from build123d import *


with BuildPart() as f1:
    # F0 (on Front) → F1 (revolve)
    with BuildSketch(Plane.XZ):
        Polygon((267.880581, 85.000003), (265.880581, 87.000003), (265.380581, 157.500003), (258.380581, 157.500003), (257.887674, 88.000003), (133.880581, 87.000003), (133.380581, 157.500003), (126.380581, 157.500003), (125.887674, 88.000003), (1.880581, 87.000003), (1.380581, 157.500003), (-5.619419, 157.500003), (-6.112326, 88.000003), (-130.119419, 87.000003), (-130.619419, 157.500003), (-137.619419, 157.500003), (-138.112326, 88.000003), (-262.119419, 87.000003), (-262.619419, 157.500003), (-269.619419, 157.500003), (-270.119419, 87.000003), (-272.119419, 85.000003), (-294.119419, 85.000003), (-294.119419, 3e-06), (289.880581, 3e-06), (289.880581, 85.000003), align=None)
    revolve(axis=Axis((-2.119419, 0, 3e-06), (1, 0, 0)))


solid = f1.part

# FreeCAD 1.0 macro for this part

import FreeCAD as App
import Part
import Sketcher
from FreeCAD import Vector

doc = App.newDocument("Part")
body = doc.addObject("PartDesign::Body", "Body")

sketch1 = doc.addObject("Sketcher::SketchObject", "Sketch")
body.addObject(sketch1)
sketch1.AttachmentSupport = (doc.XZ_Plane, [""])
sketch1.MapMode = "FlatFace"
sketch1.addGeometry([
    Part.LineSegment(Vector(267.880581, 85.000003, 0), Vector(265.880581, 87.000003, 0)),
    Part.LineSegment(Vector(265.880581, 87.000003, 0), Vector(265.380581, 157.500003, 0)),
    Part.LineSegment(Vector(265.380581, 157.500003, 0), Vector(258.380581, 157.500003, 0)),
    Part.LineSegment(Vector(258.380581, 157.500003, 0), Vector(257.887674, 88.000003, 0)),
    Part.LineSegment(Vector(257.887674, 88.000003, 0), Vector(133.880581, 87.000003, 0)),
    Part.LineSegment(Vector(133.880581, 87.000003, 0), Vector(133.380581, 157.500003, 0)),
    Part.LineSegment(Vector(133.380581, 157.500003, 0), Vector(126.380581, 157.500003, 0)),
    Part.LineSegment(Vector(126.380581, 157.500003, 0), Vector(125.887674, 88.000003, 0)),
    Part.LineSegment(Vector(125.887674, 88.000003, 0), Vector(1.880581, 87.000003, 0)),
    Part.LineSegment(Vector(1.880581, 87.000003, 0), Vector(1.380581, 157.500003, 0)),
    Part.LineSegment(Vector(1.380581, 157.500003, 0), Vector(-5.619419, 157.500003, 0)),
    Part.LineSegment(Vector(-5.619419, 157.500003, 0), Vector(-6.112326, 88.000003, 0)),
    Part.LineSegment(Vector(-6.112326, 88.000003, 0), Vector(-130.119419, 87.000003, 0)),
    Part.LineSegment(Vector(-130.119419, 87.000003, 0), Vector(-130.619419, 157.500003, 0)),
    Part.LineSegment(Vector(-130.619419, 157.500003, 0), Vector(-137.619419, 157.500003, 0)),
    Part.LineSegment(Vector(-137.619419, 157.500003, 0), Vector(-138.112326, 88.000003, 0)),
    Part.LineSegment(Vector(-138.112326, 88.000003, 0), Vector(-262.119419, 87.000003, 0)),
    Part.LineSegment(Vector(-262.119419, 87.000003, 0), Vector(-262.619419, 157.500003, 0)),
    Part.LineSegment(Vector(-262.619419, 157.500003, 0), Vector(-269.619419, 157.500003, 0)),
    Part.LineSegment(Vector(-269.619419, 157.500003, 0), Vector(-270.119419, 87.000003, 0)),
    Part.LineSegment(Vector(-270.119419, 87.000003, 0), Vector(-272.119419, 85.000003, 0)),
    Part.LineSegment(Vector(-272.119419, 85.000003, 0), Vector(-294.119419, 85.000003, 0)),
    Part.LineSegment(Vector(-294.119419, 85.000003, 0), Vector(-294.119419, 0.000003, 0)),
    Part.LineSegment(Vector(-294.119419, 0.000003, 0), Vector(289.880581, 0.000003, 0)),
    Part.LineSegment(Vector(289.880581, 0.000003, 0), Vector(289.880581, 85.000003, 0)),
    Part.LineSegment(Vector(289.880581, 85.000003, 0), Vector(267.880581, 85.000003, 0)),
], False)
sketch1.addGeometry(Part.LineSegment(Vector(-294.119419, 0.000003, 0), Vector(289.880581, 0.000003, 0)), True)
sketch1.addConstraint([
    Sketcher.Constraint("Coincident", 0, 2, 1, 1),
    Sketcher.Constraint("Coincident", 1, 2, 2, 1),
    Sketcher.Constraint("Coincident", 2, 2, 3, 1),
    Sketcher.Constraint("Coincident", 3, 2, 4, 1),
    Sketcher.Constraint("Coincident", 4, 2, 5, 1),
    Sketcher.Constraint("Coincident", 5, 2, 6, 1),
    Sketcher.Constraint("Coincident", 6, 2, 7, 1),
    Sketcher.Constraint("Coincident", 7, 2, 8, 1),
    Sketcher.Constraint("Coincident", 8, 2, 9, 1),
    Sketcher.Constraint("Coincident", 9, 2, 10, 1),
    Sketcher.Constraint("Coincident", 10, 2, 11, 1),
    Sketcher.Constraint("Coincident", 11, 2, 12, 1),
    Sketcher.Constraint("Coincident", 12, 2, 13, 1),
    Sketcher.Constraint("Coincident", 13, 2, 14, 1),
    Sketcher.Constraint("Coincident", 14, 2, 15, 1),
    Sketcher.Constraint("Coincident", 15, 2, 16, 1),
    Sketcher.Constraint("Coincident", 16, 2, 17, 1),
    Sketcher.Constraint("Coincident", 17, 2, 18, 1),
    Sketcher.Constraint("Coincident", 18, 2, 19, 1),
    Sketcher.Constraint("Coincident", 19, 2, 20, 1),
    Sketcher.Constraint("Coincident", 20, 2, 21, 1),
    Sketcher.Constraint("Coincident", 21, 2, 22, 1),
    Sketcher.Constraint("Coincident", 22, 2, 23, 1),
    Sketcher.Constraint("Coincident", 23, 2, 24, 1),
    Sketcher.Constraint("Coincident", 24, 2, 25, 1),
    Sketcher.Constraint("Coincident", 25, 2, 0, 1),
    Sketcher.Constraint("Horizontal", 2),
    Sketcher.Constraint("Horizontal", 6),
    Sketcher.Constraint("Horizontal", 10),
    Sketcher.Constraint("Horizontal", 14),
    Sketcher.Constraint("Horizontal", 18),
    Sketcher.Constraint("Horizontal", 21),
    Sketcher.Constraint("Vertical", 22),
    Sketcher.Constraint("Horizontal", 23),
    Sketcher.Constraint("Vertical", 24),
    Sketcher.Constraint("Horizontal", 25),
    Sketcher.Constraint("Horizontal", 26),
    Sketcher.Constraint("Coincident", 26, 1, 22, 2),
    Sketcher.Constraint("Parallel", 1, 5),
    Sketcher.Constraint("Parallel", 3, 7),
    Sketcher.Constraint("Parallel", 4, 8),
    Sketcher.Constraint("Parallel", 5, 9),
    Sketcher.Constraint("Parallel", 7, 11),
    Sketcher.Constraint("Parallel", 8, 12),
    Sketcher.Constraint("Parallel", 9, 13),
    Sketcher.Constraint("Parallel", 11, 15),
    Sketcher.Constraint("Parallel", 12, 16),
    Sketcher.Constraint("Parallel", 13, 17),
    Sketcher.Constraint("Parallel", 15, 19),
    Sketcher.Constraint("Perpendicular", 0, 20),
    Sketcher.Constraint("Horizontal", 0, 2, 4, 2),
    Sketcher.Constraint("Horizontal", 2, 2, 5, 2),
    Sketcher.Constraint("Horizontal", 3, 2, 7, 2),
    Sketcher.Constraint("Horizontal", 4, 2, 8, 2),
    Sketcher.Constraint("Horizontal", 6, 2, 9, 2),
    Sketcher.Constraint("Horizontal", 7, 2, 11, 2),
    Sketcher.Constraint("Horizontal", 8, 2, 12, 2),
    Sketcher.Constraint("Horizontal", 10, 2, 13, 2),
    Sketcher.Constraint("Horizontal", 11, 2, 15, 2),
    Sketcher.Constraint("Horizontal", 12, 2, 16, 2),
    Sketcher.Constraint("Horizontal", 14, 2, 17, 2),
    Sketcher.Constraint("Horizontal", 16, 2, 19, 2),
    Sketcher.Constraint("Horizontal", 21, 2, 24, 2),
    Sketcher.Constraint("Vertical", 24, 2, 26, 2),
    Sketcher.Constraint("Equal", 2, 6),
    Sketcher.Constraint("Equal", 6, 10),
    Sketcher.Constraint("Equal", 10, 14),
    Sketcher.Constraint("Equal", 14, 18),
    Sketcher.Constraint("Equal", 21, 25),
    Sketcher.Constraint("Equal", 17, 19),
    Sketcher.Constraint("Equal", 0, 20),
    Sketcher.Constraint("DistanceX", 2, 2, 2, 1, 7.0),
    Sketcher.Constraint("DistanceX", 21, 2, 21, 1, 22.0),
    Sketcher.Constraint("DistanceX", 23, 1, 23, 2, 584.0),
    Sketcher.Constraint("DistanceY", 22, 2, 22, 1, 85.0),
    Sketcher.Constraint("DistanceY", 0, 2, 3, 2, 1.0),
    Sketcher.Constraint("DistanceX", 4, 2, 0, 2, 132.0),
    Sketcher.Constraint("DistanceX", 19, 2, 16, 2, 8.0),
    Sketcher.Constraint("DistanceY", 0, 2, 1, 2, 70.5),
    Sketcher.Constraint("DistanceX", -1, 1, 0, 2, 265.880581),
    Sketcher.Constraint("DistanceY", -1, 1, 0, 2, 87.000003),
])
revolution = doc.addObject("PartDesign::Revolution", "Revolution")
body.addObject(revolution)
revolution.Profile = sketch1
revolution.ReferenceAxis = (sketch1, ["Axis0"])
revolution.Angle = 360

doc.recompute()
